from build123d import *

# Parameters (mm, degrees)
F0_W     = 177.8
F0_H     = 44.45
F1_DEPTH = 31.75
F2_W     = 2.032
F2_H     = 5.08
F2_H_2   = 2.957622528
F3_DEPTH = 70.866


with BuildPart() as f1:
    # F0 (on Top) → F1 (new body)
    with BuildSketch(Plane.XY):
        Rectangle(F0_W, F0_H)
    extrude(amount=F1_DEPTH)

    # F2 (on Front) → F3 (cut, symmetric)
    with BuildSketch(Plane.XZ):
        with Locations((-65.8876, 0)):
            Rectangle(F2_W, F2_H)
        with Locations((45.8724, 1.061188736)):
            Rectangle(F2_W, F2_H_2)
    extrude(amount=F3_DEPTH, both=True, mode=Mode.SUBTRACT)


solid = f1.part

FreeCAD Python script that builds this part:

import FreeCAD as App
import Part
import Sketcher

V = App.Vector
Q = App.Units.Quantity

doc = App.newDocument("Part")
body = doc.addObject("PartDesign::Body", "Body")

# Sketch on XY plane
sketch1 = doc.addObject("Sketcher::SketchObject", "Sketch")
body.addObject(sketch1)
sketch1.AttachmentSupport = (doc.XY_Plane, [""])
sketch1.MapMode = "FlatFace"
sketch1.addGeometry(Part.LineSegment(V(-89, 22, 0), V(-89, -22, 0)), False)
sketch1.addGeometry(Part.LineSegment(V(-89, -22, 0), V(89, -22, 0)), False)
sketch1.addGeometry(Part.LineSegment(V(89, -22, 0), V(89, 22, 0)), False)
sketch1.addGeometry(Part.LineSegment(V(89, 22, 0), V(-89, 22, 0)), False)
sketch1.addConstraint(Sketcher.Constraint("Coincident", 0, 2, 1, 1))
sketch1.addConstraint(Sketcher.Constraint("Coincident", 1, 2, 2, 1))
sketch1.addConstraint(Sketcher.Constraint("Coincident", 2, 2, 3, 1))
sketch1.addConstraint(Sketcher.Constraint("Coincident", 3, 2, 0, 1))
sketch1.addConstraint(Sketcher.Constraint("Vertical", 0))
sketch1.addConstraint(Sketcher.Constraint("Horizontal", 1))
sketch1.addConstraint(Sketcher.Constraint("Vertical", 2))
sketch1.addConstraint(Sketcher.Constraint("Horizontal", 3))
sketch1.addConstraint(Sketcher.Constraint("Symmetric", 0, 2, 2, 2, -1, 1))
sketch1.addConstraint(Sketcher.Constraint("DistanceX", 1, 1, 1, 2, Q("7 in")))
sketch1.addConstraint(Sketcher.Constraint("DistanceY", 0, 2, 0, 1, Q("1.75 in")))
pad1 = doc.addObject("PartDesign::Pad", "Pad")
body.addObject(pad1)
pad1.Profile = sketch1
pad1.Length = Q("1.25 in")

# Sketch on XZ plane
sketch2 = doc.addObject("Sketcher::SketchObject", "Sketch001")
body.addObject(sketch2)
sketch2.AttachmentSupport = (doc.XZ_Plane, [""])
sketch2.MapMode = "FlatFace"
sketch2.addGeometry(Part.LineSegment(V(-66.9, 2.5, 0), V(-66.9, -2.5, 0)), False)
sketch2.addGeometry(Part.LineSegment(V(-66.9, -2.5, 0), V(-64.9, -2.5, 0)), False)
sketch2.addGeometry(Part.LineSegment(V(-64.9, -2.5, 0), V(-64.9, 2.5, 0)), False)
sketch2.addGeometry(Part.LineSegment(V(-64.9, 2.5, 0), V(-66.9, 2.5, 0)), False)
sketch2.addGeometry(Part.LineSegment(V(44.9, 2.5, 0), V(44.9, -0.4, 0)), False)
sketch2.addGeometry(Part.LineSegment(V(44.9, -0.4, 0), V(46.9, -0.4, 0)), False)
sketch2.addGeometry(Part.LineSegment(V(46.9, -0.4, 0), V(46.9, 2.5, 0)), False)
sketch2.addGeometry(Part.LineSegment(V(46.9, 2.5, 0), V(44.9, 2.5, 0)), False)
sketch2.addConstraint(Sketcher.Constraint("Coincident", 0, 2, 1, 1))
sketch2.addConstraint(Sketcher.Constraint("Coincident", 1, 2, 2, 1))
sketch2.addConstraint(Sketcher.Constraint("Coincident", 2, 2, 3, 1))
sketch2.addConstraint(Sketcher.Constraint("Coincident", 3, 2, 0, 1))
sketch2.addConstraint(Sketcher.Constraint("Coincident", 4, 2, 5, 1))
sketch2.addConstraint(Sketcher.Constraint("Coincident", 5, 2, 6, 1))
sketch2.addConstraint(Sketcher.Constraint("Coincident", 6, 2, 7, 1))
sketch2.addConstraint(Sketcher.Constraint("Coincident", 7, 2, 4, 1))
sketch2.addConstraint(Sketcher.Constraint("Vertical", 0))
sketch2.addConstraint(Sketcher.Constraint("Horizontal", 1))
sketch2.addConstraint(Sketcher.Constraint("Vertical", 2))
sketch2.addConstraint(Sketcher.Constraint("Horizontal", 3))
sketch2.addConstraint(Sketcher.Constraint("Vertical", 4))
sketch2.addConstraint(Sketcher.Constraint("Horizontal", 5))
sketch2.addConstraint(Sketcher.Constraint("Vertical", 6))
sketch2.addConstraint(Sketcher.Constraint("Horizontal", 7))
sketch2.addConstraint(Sketcher.Constraint("Horizontal", 3, 2, 6, 2))
sketch2.addConstraint(Sketcher.Constraint("Equal", 3, 5))
sketch2.addConstraint(Sketcher.Constraint("DistanceY", 0, 2, 0, 1, Q("0.2 in")))
sketch2.addConstraint(Sketcher.Constraint("DistanceX", 1, 1, 1, 2, Q("0.08 in")))
sketch2.addConstraint(Sketcher.Constraint("DistanceY", 0, 2, -1, 1, Q("0.1 in")))
sketch2.addConstraint(Sketcher.Constraint("DistanceX", 0, 2, 4, 2, Q("4.4 in")))
sketch2.addConstraint(Sketcher.Constraint("DistanceX", 0, 2, -1, 1, Q("2.634 in")))
sketch2.addConstraint(Sketcher.Constraint("DistanceY", 4, 2, 4, 1, 2.957623))
pocket1 = doc.addObject("PartDesign::Pocket", "Pocket")
body.addObject(pocket1)
pocket1.Profile = sketch2
pocket1.Length = Q("5.58 in")
pocket1.Midplane = True

doc.recompute()
